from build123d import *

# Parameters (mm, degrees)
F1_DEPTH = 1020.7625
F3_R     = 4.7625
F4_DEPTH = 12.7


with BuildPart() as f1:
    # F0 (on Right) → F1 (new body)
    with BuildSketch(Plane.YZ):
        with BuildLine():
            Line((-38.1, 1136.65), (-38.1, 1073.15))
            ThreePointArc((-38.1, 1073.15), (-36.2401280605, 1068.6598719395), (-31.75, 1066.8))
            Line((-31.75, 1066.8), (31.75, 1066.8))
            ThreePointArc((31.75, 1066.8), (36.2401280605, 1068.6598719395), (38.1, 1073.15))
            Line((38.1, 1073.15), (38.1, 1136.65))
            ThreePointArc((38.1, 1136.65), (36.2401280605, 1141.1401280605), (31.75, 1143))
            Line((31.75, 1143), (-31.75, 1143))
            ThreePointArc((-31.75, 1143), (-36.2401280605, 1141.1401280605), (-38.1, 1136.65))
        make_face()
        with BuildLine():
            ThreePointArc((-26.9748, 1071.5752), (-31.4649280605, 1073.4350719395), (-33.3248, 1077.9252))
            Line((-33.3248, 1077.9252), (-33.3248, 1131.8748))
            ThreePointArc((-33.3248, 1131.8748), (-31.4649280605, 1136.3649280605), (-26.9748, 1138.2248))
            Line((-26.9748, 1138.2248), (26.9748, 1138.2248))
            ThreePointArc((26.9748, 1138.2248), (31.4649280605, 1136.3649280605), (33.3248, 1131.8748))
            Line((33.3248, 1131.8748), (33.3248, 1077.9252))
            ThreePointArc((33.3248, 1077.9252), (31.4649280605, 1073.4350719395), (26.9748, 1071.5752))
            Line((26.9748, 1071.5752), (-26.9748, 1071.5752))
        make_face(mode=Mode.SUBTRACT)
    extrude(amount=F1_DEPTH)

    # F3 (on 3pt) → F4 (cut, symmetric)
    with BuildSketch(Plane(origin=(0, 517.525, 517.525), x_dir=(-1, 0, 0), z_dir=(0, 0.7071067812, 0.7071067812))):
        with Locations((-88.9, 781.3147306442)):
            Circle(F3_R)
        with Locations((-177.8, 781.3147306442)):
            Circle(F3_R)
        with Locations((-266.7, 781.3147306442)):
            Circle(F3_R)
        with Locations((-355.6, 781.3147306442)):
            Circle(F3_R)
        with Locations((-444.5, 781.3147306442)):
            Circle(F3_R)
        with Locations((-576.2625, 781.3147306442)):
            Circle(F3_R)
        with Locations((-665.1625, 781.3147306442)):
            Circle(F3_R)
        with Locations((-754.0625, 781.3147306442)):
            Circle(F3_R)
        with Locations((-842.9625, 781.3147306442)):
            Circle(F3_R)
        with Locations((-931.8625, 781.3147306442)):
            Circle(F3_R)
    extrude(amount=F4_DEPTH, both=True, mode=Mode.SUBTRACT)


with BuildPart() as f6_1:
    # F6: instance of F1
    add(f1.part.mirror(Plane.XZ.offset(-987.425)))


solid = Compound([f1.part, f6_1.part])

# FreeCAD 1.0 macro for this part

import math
import FreeCAD as App
import Part
import Sketcher
Q = App.Units.Quantity

doc = App.newDocument("Part")
body = doc.addObject("PartDesign::Body", "Body")

# Sketch on YZ plane
sketch1 = body.newObject("Sketcher::SketchObject", "Sketch")
sketch1.AttachmentSupport = (doc.getObject("YZ_Plane"), [""])
sketch1.MapMode = "FlatFace"
sketch1.addGeometry([
    Part.LineSegment(App.Vector(-38.1, 1136.65, 0), App.Vector(-38.1, 1073.15, 0)),  # 0
    Part.ArcOfCircle(Part.Circle(App.Vector(-31.75, 1073.15, 0), App.Vector(0, 0, 1), 6.35), math.radians(180), math.radians(270)),  # 1
    Part.LineSegment(App.Vector(-31.75, 1066.8, 0), App.Vector(31.75, 1066.8, 0)),  # 2
    Part.ArcOfCircle(Part.Circle(App.Vector(31.75, 1073.15, 0), App.Vector(0, 0, 1), 6.35), math.radians(-90), math.radians(0)),  # 3
    Part.LineSegment(App.Vector(38.1, 1073.15, 0), App.Vector(38.1, 1136.65, 0)),  # 4
    Part.ArcOfCircle(Part.Circle(App.Vector(31.75, 1136.65, 0), App.Vector(0, 0, 1), 6.35), math.radians(0), math.radians(90)),  # 5
    Part.LineSegment(App.Vector(31.75, 1143, 0), App.Vector(-31.75, 1143, 0)),  # 6
    Part.ArcOfCircle(Part.Circle(App.Vector(-31.75, 1136.65, 0), App.Vector(0, 0, 1), 6.35), math.radians(90), math.radians(180)),  # 7
    Part.LineSegment(App.Vector(26.9748, 1071.5752, 0), App.Vector(-26.9748, 1071.5752, 0)),  # 8
    Part.ArcOfCircle(Part.Circle(App.Vector(-26.9748, 1077.9252, 0), App.Vector(0, 0, 1), 6.35), math.radians(180), math.radians(270)),  # 9
    Part.LineSegment(App.Vector(-33.3248, 1077.9252, 0), App.Vector(-33.3248, 1131.8748, 0)),  # 10
    Part.ArcOfCircle(Part.Circle(App.Vector(-26.9748, 1131.8748, 0), App.Vector(0, 0, 1), 6.35), math.radians(90), math.radians(180)),  # 11
    Part.LineSegment(App.Vector(-26.9748, 1138.2248, 0), App.Vector(26.9748, 1138.2248, 0)),  # 12
    Part.ArcOfCircle(Part.Circle(App.Vector(26.9748, 1131.8748, 0), App.Vector(0, 0, 1), 6.35), math.radians(0), math.radians(90)),  # 13
    Part.LineSegment(App.Vector(33.3248, 1131.8748, 0), App.Vector(33.3248, 1077.9252, 0)),  # 14
    Part.ArcOfCircle(Part.Circle(App.Vector(26.9748, 1077.9252, 0), App.Vector(0, 0, 1), 6.35), math.radians(-90), math.radians(0)),  # 15
], False)
sketch1.addConstraint([
    Sketcher.Constraint("Tangent", 0, 2, 1, 1),
    Sketcher.Constraint("Tangent", 1, 2, 2, 1),
    Sketcher.Constraint("Tangent", 2, 2, 3, 1),
    Sketcher.Constraint("Tangent", 3, 2, 4, 1),
    Sketcher.Constraint("Tangent", 4, 2, 5, 1),
    Sketcher.Constraint("Tangent", 5, 2, 6, 1),
    Sketcher.Constraint("Tangent", 6, 2, 7, 1),
    Sketcher.Constraint("Tangent", 7, 2, 0, 1),
    Sketcher.Constraint("Tangent", 8, 2, 9, 2),
    Sketcher.Constraint("Tangent", 9, 1, 10, 1),
    Sketcher.Constraint("Tangent", 10, 2, 11, 2),
    Sketcher.Constraint("Tangent", 11, 1, 12, 1),
    Sketcher.Constraint("Tangent", 12, 2, 13, 2),
    Sketcher.Constraint("Tangent", 13, 1, 14, 1),
    Sketcher.Constraint("Tangent", 14, 2, 15, 2),
    Sketcher.Constraint("Tangent", 15, 1, 8, 1),
    Sketcher.Constraint("Vertical", 0),
    Sketcher.Constraint("Horizontal", 2),
    Sketcher.Constraint("Vertical", 4),
    Sketcher.Constraint("Horizontal", 6),
    Sketcher.Constraint("Horizontal", 8),
    Sketcher.Constraint("Vertical", 10),
    Sketcher.Constraint("Horizontal", 12),
    Sketcher.Constraint("Vertical", 14),
    Sketcher.Constraint("Equal", 1, 3),
    Sketcher.Constraint("Equal", 3, 5),
    Sketcher.Constraint("Equal", 5, 7),
    Sketcher.Constraint("Equal", 7, 9),
    Sketcher.Constraint("Equal", 9, 11),
    Sketcher.Constraint("Equal", 11, 13),
    Sketcher.Constraint("Equal", 13, 15),
    Sketcher.Constraint("Equal", 6, 0),
    Sketcher.Constraint("Equal", 12, 10),
    Sketcher.Constraint("Radius", 1, Q("0.25 in")),
    Sketcher.Constraint("DistanceX", 2, 1, 2, 2, Q("2.5 in")),
    Sketcher.Constraint("DistanceY", -1, 1, 1, 2, Q("42 in")),
    Sketcher.Constraint("DistanceX", 0, 2, -1, 1, Q("1.5 in")),
    Sketcher.Constraint("DistanceX", 8, 2, 8, 1, Q("2.124 in")),
    Sketcher.Constraint("DistanceX", 9, 3, -1, 1, Q("1.062 in")),
    Sketcher.Constraint("DistanceY", -1, 1, 9, 3, Q("42.438 in")),
])
pad1 = body.newObject("PartDesign::Pad", "Pad")
pad1.Profile = sketch1
pad1.Length = Q("40.1875 in")

# Sketch on an angled plane
sketch2 = body.newObject("Sketcher::SketchObject", "Sketch001")
sketch2.Placement = App.Placement(App.Vector(0, 517.525, 517.525), App.Rotation(App.Vector(-1, 0, 0), App.Vector(0, -0.707106781, 0.707106781), App.Vector(0, 0.707106781, 0.707106781), "ZXY"))
sketch2.addGeometry([
    Part.Circle(App.Vector(-88.9, 781.31473, 0), App.Vector(0, 0, 1), 4.7625),  # 0
    Part.Circle(App.Vector(-177.8, 781.31473, 0), App.Vector(0, 0, 1), 4.7625),  # 1
    Part.Circle(App.Vector(-266.7, 781.31473, 0), App.Vector(0, 0, 1), 4.7625),  # 2
    Part.Circle(App.Vector(-355.6, 781.31473, 0), App.Vector(0, 0, 1), 4.7625),  # 3
    Part.Circle(App.Vector(-444.5, 781.31473, 0), App.Vector(0, 0, 1), 4.7625),  # 4
    Part.Circle(App.Vector(-576.2625, 781.31473, 0), App.Vector(0, 0, 1), 4.7625),  # 5
    Part.Circle(App.Vector(-665.1625, 781.31473, 0), App.Vector(0, 0, 1), 4.7625),  # 6
    Part.Circle(App.Vector(-754.0625, 781.31473, 0), App.Vector(0, 0, 1), 4.7625),  # 7
    Part.Circle(App.Vector(-842.9625, 781.31473, 0), App.Vector(0, 0, 1), 4.7625),  # 8
    Part.Circle(App.Vector(-931.8625, 781.31473, 0), App.Vector(0, 0, 1), 4.7625),  # 9
], False)
sketch2.addConstraint([
    Sketcher.Constraint("Equal", 0, 1),
    Sketcher.Constraint("Equal", 1, 2),
    Sketcher.Constraint("Equal", 2, 3),
    Sketcher.Constraint("Equal", 3, 4),
    Sketcher.Constraint("Equal", 4, 5),
    Sketcher.Constraint("Equal", 5, 6),
    Sketcher.Constraint("Equal", 6, 7),
    Sketcher.Constraint("Equal", 7, 8),
    Sketcher.Constraint("Equal", 8, 9),
    Sketcher.Constraint("Horizontal", 0, 3, 1, 3),
    Sketcher.Constraint("Horizontal", 1, 3, 2, 3),
    Sketcher.Constraint("Horizontal", 2, 3, 3, 3),
    Sketcher.Constraint("Horizontal", 3, 3, 4, 3),
    Sketcher.Constraint("Horizontal", 4, 3, 5, 3),
    Sketcher.Constraint("Horizontal", 5, 3, 6, 3),
    Sketcher.Constraint("Horizontal", 6, 3, 7, 3),
    Sketcher.Constraint("Horizontal", 7, 3, 8, 3),
    Sketcher.Constraint("Horizontal", 8, 3, 9, 3),
    Sketcher.Constraint("Diameter", 0, Q("0.375 in")),
    Sketcher.Constraint("DistanceX", 1, 3, -1, 1, Q("7 in")),
    Sketcher.Constraint("DistanceX", 3, 3, -1, 1, Q("14 in")),
    Sketcher.Constraint("DistanceX", 2, 3, 0, 3, Q("7 in")),
    Sketcher.Constraint("DistanceX", 4, 3, 2, 3, Q("7 in")),
    Sketcher.Constraint("DistanceX", 7, 3, 5, 3, Q("7 in")),
    Sketcher.Constraint("DistanceX", 8, 3, 6, 3, Q("7 in")),
    Sketcher.Constraint("DistanceX", 9, 3, 7, 3, Q("7 in")),
    Sketcher.Constraint("DistanceX", 0, 3, -1, 1, Q("3.5 in")),
    Sketcher.Constraint("DistanceX", 6, 3, 5, 3, Q("3.5 in")),
    Sketcher.Constraint("DistanceX", 5, 3, -1, 1, Q("22.6875 in")),
    Sketcher.Constraint("DistanceY", -1, 1, 0, 3, Q("781.31473 mm")),
])
pocket1 = body.newObject("PartDesign::Pocket", "Pocket")
pocket1.Profile = sketch2
pocket1.Length = Q("1 in")
pocket1.Midplane = True
body2 = doc.addObject("PartDesign::Body", "Body001")
doc.recompute()

mirroring = doc.addObject("Part::Mirroring", "Mirroring")
mirroring.Source = body
mirroring.Base = App.Vector(0, 987.425, 0)
mirroring.Normal = App.Vector(0, -1, 0)
body2.BaseFeature = mirroring
doc.recompute()
mirroring.Visibility = False

doc.recompute()
